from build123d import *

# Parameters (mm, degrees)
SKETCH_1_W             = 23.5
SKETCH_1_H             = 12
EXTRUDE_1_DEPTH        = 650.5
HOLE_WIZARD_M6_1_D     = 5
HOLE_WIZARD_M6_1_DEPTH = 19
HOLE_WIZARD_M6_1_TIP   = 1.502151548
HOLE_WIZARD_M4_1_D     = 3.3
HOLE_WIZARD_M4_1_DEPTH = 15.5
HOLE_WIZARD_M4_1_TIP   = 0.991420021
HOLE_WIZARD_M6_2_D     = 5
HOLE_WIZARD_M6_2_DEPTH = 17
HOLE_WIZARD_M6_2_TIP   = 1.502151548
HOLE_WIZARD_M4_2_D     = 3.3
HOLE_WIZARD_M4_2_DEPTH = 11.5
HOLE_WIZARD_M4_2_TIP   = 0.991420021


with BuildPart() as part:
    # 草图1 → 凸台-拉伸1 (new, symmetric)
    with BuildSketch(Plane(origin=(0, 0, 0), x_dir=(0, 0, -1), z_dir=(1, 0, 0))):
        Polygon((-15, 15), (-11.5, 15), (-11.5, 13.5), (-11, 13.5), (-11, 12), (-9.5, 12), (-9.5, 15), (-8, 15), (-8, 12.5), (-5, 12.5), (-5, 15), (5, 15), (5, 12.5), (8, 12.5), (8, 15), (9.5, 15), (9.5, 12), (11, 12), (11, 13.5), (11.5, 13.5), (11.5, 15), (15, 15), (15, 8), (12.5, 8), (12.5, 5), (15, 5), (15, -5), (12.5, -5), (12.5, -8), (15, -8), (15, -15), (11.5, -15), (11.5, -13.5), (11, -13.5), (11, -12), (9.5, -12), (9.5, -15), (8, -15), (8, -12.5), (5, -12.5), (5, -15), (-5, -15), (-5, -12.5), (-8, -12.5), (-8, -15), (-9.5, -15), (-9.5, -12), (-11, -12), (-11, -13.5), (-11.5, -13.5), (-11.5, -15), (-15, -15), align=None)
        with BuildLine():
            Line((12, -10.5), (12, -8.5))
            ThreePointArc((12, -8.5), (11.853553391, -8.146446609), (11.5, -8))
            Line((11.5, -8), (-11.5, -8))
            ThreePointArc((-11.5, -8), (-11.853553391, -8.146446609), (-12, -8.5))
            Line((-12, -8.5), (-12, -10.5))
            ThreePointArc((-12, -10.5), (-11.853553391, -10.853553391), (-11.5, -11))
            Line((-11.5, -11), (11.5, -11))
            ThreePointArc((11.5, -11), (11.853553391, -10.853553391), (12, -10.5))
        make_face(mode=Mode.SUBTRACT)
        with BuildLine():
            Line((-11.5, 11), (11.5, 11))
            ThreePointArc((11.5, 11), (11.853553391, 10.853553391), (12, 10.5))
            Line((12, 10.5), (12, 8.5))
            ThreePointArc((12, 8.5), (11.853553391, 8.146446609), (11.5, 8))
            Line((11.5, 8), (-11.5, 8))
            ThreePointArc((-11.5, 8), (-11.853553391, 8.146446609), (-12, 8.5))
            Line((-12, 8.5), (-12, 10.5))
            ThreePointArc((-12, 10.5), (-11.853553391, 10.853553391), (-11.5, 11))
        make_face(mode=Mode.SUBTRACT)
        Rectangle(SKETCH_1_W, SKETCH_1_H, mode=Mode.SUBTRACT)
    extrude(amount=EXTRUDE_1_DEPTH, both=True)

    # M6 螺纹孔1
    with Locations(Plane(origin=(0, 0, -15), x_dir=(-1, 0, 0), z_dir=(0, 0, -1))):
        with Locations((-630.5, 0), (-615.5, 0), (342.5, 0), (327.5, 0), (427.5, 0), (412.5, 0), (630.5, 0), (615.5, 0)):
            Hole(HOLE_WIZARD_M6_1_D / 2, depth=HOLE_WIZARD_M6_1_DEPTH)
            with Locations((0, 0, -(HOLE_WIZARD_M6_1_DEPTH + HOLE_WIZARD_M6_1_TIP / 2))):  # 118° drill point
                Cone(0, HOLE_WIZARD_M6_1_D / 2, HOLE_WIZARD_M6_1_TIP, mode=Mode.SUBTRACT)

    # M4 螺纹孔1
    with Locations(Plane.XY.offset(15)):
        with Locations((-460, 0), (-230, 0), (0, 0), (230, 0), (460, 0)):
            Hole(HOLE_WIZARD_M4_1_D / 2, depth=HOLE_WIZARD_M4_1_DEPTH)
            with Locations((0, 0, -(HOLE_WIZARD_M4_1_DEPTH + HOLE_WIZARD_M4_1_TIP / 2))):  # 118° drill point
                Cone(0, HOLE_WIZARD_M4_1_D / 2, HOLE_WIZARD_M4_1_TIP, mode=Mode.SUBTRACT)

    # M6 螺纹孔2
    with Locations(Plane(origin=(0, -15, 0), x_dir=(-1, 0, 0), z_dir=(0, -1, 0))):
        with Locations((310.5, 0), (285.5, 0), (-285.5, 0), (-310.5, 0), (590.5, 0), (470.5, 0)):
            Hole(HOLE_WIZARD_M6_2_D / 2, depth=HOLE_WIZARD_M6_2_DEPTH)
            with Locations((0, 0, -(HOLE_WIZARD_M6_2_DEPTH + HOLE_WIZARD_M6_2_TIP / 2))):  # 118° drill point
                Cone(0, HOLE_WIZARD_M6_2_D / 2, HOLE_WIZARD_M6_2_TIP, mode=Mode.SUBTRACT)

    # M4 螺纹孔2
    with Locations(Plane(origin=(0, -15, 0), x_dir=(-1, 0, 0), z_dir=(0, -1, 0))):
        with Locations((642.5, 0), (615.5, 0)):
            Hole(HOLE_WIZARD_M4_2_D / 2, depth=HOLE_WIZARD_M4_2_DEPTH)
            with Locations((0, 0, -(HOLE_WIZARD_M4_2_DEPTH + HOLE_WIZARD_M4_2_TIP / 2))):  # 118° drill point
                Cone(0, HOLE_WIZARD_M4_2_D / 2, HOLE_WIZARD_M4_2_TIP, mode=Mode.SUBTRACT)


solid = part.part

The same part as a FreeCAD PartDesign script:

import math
import FreeCAD as App
import Part
import Sketcher

V = App.Vector
Q = App.Units.Quantity


def add_polygon(sketch, points):
    """Adds a closed chain of lines whose ends are joined by coincident constraints."""
    first, n = sketch.GeometryCount, len(points)
    for a, b in zip(points, points[1:] + points[:1]):
        sketch.addGeometry(Part.LineSegment(App.Vector(*a, 0), App.Vector(*b, 0)), False)
    for i in range(n):
        sketch.addConstraint(Sketcher.Constraint("Coincident", first + i, 2, first + (i + 1) % n, 1))

doc = App.newDocument("Part")
params = doc.addObject("Spreadsheet::Sheet", "Params")
for row, (alias, value) in enumerate([
    ("sketch1_radius", "0.5 mm"),
    ("sketch1_width", "30 mm"),
    ("sketch1_width2", "3 mm"),
    ("sketch1_width3", "7 mm"),
    ("sketch1_width4", "2 mm"),
    ("pad1_length", "1301 mm"),
    ("sketch2_diameter", "5 mm"),
    ("hole_diameter", "5 mm"),
    ("hole_depth", "19 mm"),
    ("sketch3_diameter", "3.3 mm"),
    ("hole2_diameter", "3.3 mm"),
    ("hole2_depth", "15.5 mm"),
    ("sketch4_diameter", "5 mm"),
    ("hole3_diameter", "5 mm"),
    ("hole3_depth", "17 mm"),
    ("sketch5_diameter", "3.3 mm"),
    ("hole4_diameter", "3.3 mm"),
    ("hole4_depth", "11.5 mm"),
], start=1):
    params.set(f"A{row}", alias)
    params.set(f"B{row}", "=" + value)
    params.setAlias(f"B{row}", alias)

body = doc.addObject("PartDesign::Body", "Body")

sketch1 = doc.addObject("Sketcher::SketchObject", "Sketch")
body.addObject(sketch1)
sketch1.AttachmentSupport = (doc.YZ_Plane, [""])
sketch1.MapMode = "FlatFace"
add_polygon(sketch1, [(15, 11.5), (15, 15), (-15, 15), (-15, 11.5), (-13.5, 11.5), (-13.5, 11), (-12, 11), (-12, 9.5), (-15, 9.5), (-15, 8), (-12.5, 8), (-12.5, 5), (-15, 5), (-15, -5), (-12.5, -5), (-12.5, -8), (-15, -8), (-15, -9.5), (-12, -9.5), (-12, -11), (-13.5, -11), (-13.5, -11.5), (-15, -11.5), (-15, -15), (-8, -15), (-8, -12.5), (-5, -12.5), (-5, -15), (5, -15), (5, -12.5), (8, -12.5), (8, -15), (15, -15), (15, -11.5), (13.5, -11.5), (13.5, -11), (12, -11), (12, -9.5), (15, -9.5), (15, -8), (12.5, -8), (12.5, -5), (15, -5), (15, 5), (12.5, 5), (12.5, 8), (15, 8), (15, 9.5), (12, 9.5), (12, 11), (13.5, 11), (13.5, 11.5)])
sketch1.addGeometry(Part.ArcOfCircle(Part.Circle(V(-10.5, -11.5, 0), V(0, 0, 1), 0.5), math.radians(180), math.radians(270)), False)
sketch1.addGeometry(Part.LineSegment(V(-11, -11.5, 0), V(-11, 11.5, 0)), False)
sketch1.addGeometry(Part.ArcOfCircle(Part.Circle(V(-10.5, 11.5, 0), V(0, 0, 1), 0.5), math.radians(90), math.radians(180)), False)
sketch1.addGeometry(Part.LineSegment(V(-10.5, 12, 0), V(-8.5, 12, 0)), False)
sketch1.addGeometry(Part.ArcOfCircle(Part.Circle(V(-8.5, 11.5, 0), V(0, 0, 1), 0.5), math.radians(0), math.radians(90)), False)
sketch1.addGeometry(Part.LineSegment(V(-8, 11.5, 0), V(-8, -11.5, 0)), False)
sketch1.addGeometry(Part.ArcOfCircle(Part.Circle(V(-8.5, -11.5, 0), V(0, 0, 1), 0.5), math.radians(-90), math.radians(0)), False)
sketch1.addGeometry(Part.LineSegment(V(-8.5, -12, 0), V(-10.5, -12, 0)), False)
add_polygon(sketch1, [(-6, 11.75), (6, 11.75), (6, -11.75), (-6, -11.75)])
sketch1.addGeometry(Part.LineSegment(V(11, 11.5, 0), V(11, -11.5, 0)), False)
sketch1.addGeometry(Part.ArcOfCircle(Part.Circle(V(10.5, -11.5, 0), V(0, 0, 1), 0.5), math.radians(-90), math.radians(0)), False)
sketch1.addGeometry(Part.LineSegment(V(10.5, -12, 0), V(8.5, -12, 0)), False)
sketch1.addGeometry(Part.ArcOfCircle(Part.Circle(V(8.5, -11.5, 0), V(0, 0, 1), 0.5), math.radians(180), math.radians(270)), False)
sketch1.addGeometry(Part.LineSegment(V(8, -11.5, 0), V(8, 11.5, 0)), False)
sketch1.addGeometry(Part.ArcOfCircle(Part.Circle(V(8.5, 11.5, 0), V(0, 0, 1), 0.5), math.radians(90), math.radians(180)), False)
sketch1.addGeometry(Part.LineSegment(V(8.5, 12, 0), V(10.5, 12, 0)), False)
sketch1.addGeometry(Part.ArcOfCircle(Part.Circle(V(10.5, 11.5, 0), V(0, 0, 1), 0.5), math.radians(0), math.radians(90)), False)
sketch1.addConstraint(Sketcher.Constraint("Tangent", 52, 1, 53, 1))
sketch1.addConstraint(Sketcher.Constraint("Tangent", 53, 2, 54, 2))
sketch1.addConstraint(Sketcher.Constraint("Tangent", 54, 1, 55, 1))
sketch1.addConstraint(Sketcher.Constraint("Tangent", 55, 2, 56, 2))
sketch1.addConstraint(Sketcher.Constraint("Tangent", 56, 1, 57, 1))
sketch1.addConstraint(Sketcher.Constraint("Tangent", 57, 2, 58, 2))
sketch1.addConstraint(Sketcher.Constraint("Tangent", 58, 1, 59, 1))
sketch1.addConstraint(Sketcher.Constraint("Tangent", 59, 2, 52, 2))
sketch1.addConstraint(Sketcher.Constraint("Tangent", 64, 2, 65, 2))
sketch1.addConstraint(Sketcher.Constraint("Tangent", 65, 1, 66, 1))
sketch1.addConstraint(Sketcher.Constraint("Tangent", 66, 2, 67, 2))
sketch1.addConstraint(Sketcher.Constraint("Tangent", 67, 1, 68, 1))
sketch1.addConstraint(Sketcher.Constraint("Tangent", 68, 2, 69, 2))
sketch1.addConstraint(Sketcher.Constraint("Tangent", 69, 1, 70, 1))
sketch1.addConstraint(Sketcher.Constraint("Tangent", 70, 2, 71, 2))
sketch1.addConstraint(Sketcher.Constraint("Tangent", 71, 1, 64, 1))
sketch1.addConstraint(Sketcher.Constraint("Vertical", 0))
sketch1.addConstraint(Sketcher.Constraint("Horizontal", 1))
sketch1.addConstraint(Sketcher.Constraint("Vertical", 2))
sketch1.addConstraint(Sketcher.Constraint("Horizontal", 3))
sketch1.addConstraint(Sketcher.Constraint("Vertical", 4))
sketch1.addConstraint(Sketcher.Constraint("Horizontal", 5))
sketch1.addConstraint(Sketcher.Constraint("Vertical", 6))
sketch1.addConstraint(Sketcher.Constraint("Horizontal", 7))
sketch1.addConstraint(Sketcher.Constraint("Vertical", 8))
sketch1.addConstraint(Sketcher.Constraint("Horizontal", 9))
sketch1.addConstraint(Sketcher.Constraint("Vertical", 10))
sketch1.addConstraint(Sketcher.Constraint("Horizontal", 11))
sketch1.addConstraint(Sketcher.Constraint("Vertical", 12))
sketch1.addConstraint(Sketcher.Constraint("Horizontal", 13))
sketch1.addConstraint(Sketcher.Constraint("Vertical", 14))
sketch1.addConstraint(Sketcher.Constraint("Horizontal", 15))
sketch1.addConstraint(Sketcher.Constraint("Vertical", 16))
sketch1.addConstraint(Sketcher.Constraint("Horizontal", 17))
sketch1.addConstraint(Sketcher.Constraint("Vertical", 18))
sketch1.addConstraint(Sketcher.Constraint("Horizontal", 19))
sketch1.addConstraint(Sketcher.Constraint("Vertical", 20))
sketch1.addConstraint(Sketcher.Constraint("Horizontal", 21))
sketch1.addConstraint(Sketcher.Constraint("Vertical", 22))
sketch1.addConstraint(Sketcher.Constraint("Horizontal", 23))
sketch1.addConstraint(Sketcher.Constraint("Vertical", 24))
sketch1.addConstraint(Sketcher.Constraint("Horizontal", 25))
sketch1.addConstraint(Sketcher.Constraint("Vertical", 26))
sketch1.addConstraint(Sketcher.Constraint("Horizontal", 27))
sketch1.addConstraint(Sketcher.Constraint("Vertical", 28))
sketch1.addConstraint(Sketcher.Constraint("Horizontal", 29))
sketch1.addConstraint(Sketcher.Constraint("Vertical", 30))
sketch1.addConstraint(Sketcher.Constraint("Horizontal", 31))
sketch1.addConstraint(Sketcher.Constraint("Vertical", 32))
sketch1.addConstraint(Sketcher.Constraint("Horizontal", 33))
sketch1.addConstraint(Sketcher.Constraint("Vertical", 34))
sketch1.addConstraint(Sketcher.Constraint("Horizontal", 35))
sketch1.addConstraint(Sketcher.Constraint("Vertical", 36))
sketch1.addConstraint(Sketcher.Constraint("Horizontal", 37))
sketch1.addConstraint(Sketcher.Constraint("Vertical", 38))
sketch1.addConstraint(Sketcher.Constraint("Horizontal", 39))
sketch1.addConstraint(Sketcher.Constraint("Vertical", 40))
sketch1.addConstraint(Sketcher.Constraint("Horizontal", 41))
sketch1.addConstraint(Sketcher.Constraint("Vertical", 42))
sketch1.addConstraint(Sketcher.Constraint("Horizontal", 43))
sketch1.addConstraint(Sketcher.Constraint("Vertical", 44))
sketch1.addConstraint(Sketcher.Constraint("Horizontal", 45))
sketch1.addConstraint(Sketcher.Constraint("Vertical", 46))
sketch1.addConstraint(Sketcher.Constraint("Horizontal", 47))
sketch1.addConstraint(Sketcher.Constraint("Vertical", 48))
sketch1.addConstraint(Sketcher.Constraint("Horizontal", 49))
sketch1.addConstraint(Sketcher.Constraint("Vertical", 50))
sketch1.addConstraint(Sketcher.Constraint("Horizontal", 51))
sketch1.addConstraint(Sketcher.Constraint("Vertical", 53))
sketch1.addConstraint(Sketcher.Constraint("Horizontal", 55))
sketch1.addConstraint(Sketcher.Constraint("Vertical", 57))
sketch1.addConstraint(Sketcher.Constraint("Horizontal", 59))
sketch1.addConstraint(Sketcher.Constraint("Horizontal", 60))
sketch1.addConstraint(Sketcher.Constraint("Vertical", 61))
sketch1.addConstraint(Sketcher.Constraint("Horizontal", 62))
sketch1.addConstraint(Sketcher.Constraint("Vertical", 63))
sketch1.addConstraint(Sketcher.Constraint("Vertical", 64))
sketch1.addConstraint(Sketcher.Constraint("Horizontal", 66))
sketch1.addConstraint(Sketcher.Constraint("Vertical", 68))
sketch1.addConstraint(Sketcher.Constraint("Horizontal", 70))
sketch1.addConstraint(Sketcher.Constraint("Equal", 52, 54))
sketch1.addConstraint(Sketcher.Constraint("Equal", 54, 56))
sketch1.addConstraint(Sketcher.Constraint("Equal", 56, 58))
sketch1.addConstraint(Sketcher.Constraint("Equal", 58, 65))
sketch1.addConstraint(Sketcher.Constraint("Equal", 65, 67))
sketch1.addConstraint(Sketcher.Constraint("Equal", 67, 69))
sketch1.addConstraint(Sketcher.Constraint("Equal", 69, 71))
sketch1.addConstraint(Sketcher.Constraint("Symmetric", 54, 3, 65, 3, -1, 1))
sketch1.addConstraint(Sketcher.Constraint("Symmetric", 58, 3, 69, 3, -1, 1))
sketch1.addConstraint(Sketcher.Constraint("Symmetric", 0, 2, 22, 2, -1, 1))
sketch1.addConstraint(Sketcher.Constraint("Symmetric", 1, 2, 31, 2, -1, 1))
sketch1.addConstraint(Sketcher.Constraint("Symmetric", 3, 2, 33, 2, -1, 1))
sketch1.addConstraint(Sketcher.Constraint("Symmetric", 5, 2, 35, 2, -1, 1))
sketch1.addConstraint(Sketcher.Constraint("Symmetric", 7, 2, 37, 2, -1, 1))
sketch1.addConstraint(Sketcher.Constraint("Symmetric", 9, 2, 39, 2, -1, 1))
sketch1.addConstraint(Sketcher.Constraint("Symmetric", 11, 2, 41, 2, -1, 1))
sketch1.addConstraint(Sketcher.Constraint("Symmetric", 13, 2, 43, 2, -1, 1))
sketch1.addConstraint(Sketcher.Constraint("Symmetric", 15, 2, 45, 2, -1, 1))
sketch1.addConstraint(Sketcher.Constraint("Symmetric", 17, 2, 47, 2, -1, 1))
sketch1.addConstraint(Sketcher.Constraint("Symmetric", 19, 2, 49, 2, -1, 1))
sketch1.addConstraint(Sketcher.Constraint("Symmetric", 60, 2, 62, 2, -1, 1))
sketch1.addConstraint(Sketcher.Constraint("Symmetric", 25, 2, 28, 2, -2))
sketch1.addConstraint(Sketcher.Constraint("Symmetric", 21, 2, 32, 2, -2))
sketch1.addConstraint(Sketcher.Constraint("Symmetric", 19, 2, 34, 2, -2))
sketch1.addConstraint(Sketcher.Constraint("Symmetric", 17, 2, 36, 2, -2))
sketch1.addConstraint(Sketcher.Constraint("Symmetric", 15, 2, 38, 2, -2))
sketch1.addConstraint(Sketcher.Constraint("Symmetric", 13, 2, 40, 2, -2))
sketch1.addConstraint(Sketcher.Constraint("Horizontal", 58, 3, 65, 3))
sketch1.addConstraint(Sketcher.Constraint("Horizontal", 71, 3, 2, 2))
sketch1.addConstraint(Sketcher.Constraint("Horizontal", 23, 2, 26, 2))
sketch1.addConstraint(Sketcher.Constraint("Horizontal", 3, 2, 50, 2))
sketch1.addConstraint(Sketcher.Constraint("Vertical", 2, 2, 7, 2))
sketch1.addConstraint(Sketcher.Constraint("Vertical", 8, 2, 11, 2))
sketch1.addConstraint(Sketcher.Constraint("Vertical", 24, 2, 56, 1))
sketch1.addConstraint(Sketcher.Constraint("Vertical", 30, 2, 67, 1))
sketch1.addConstraint(Sketcher.Constraint("Equal", 3, 5))
sketch1.addConstraint(Sketcher.Constraint("Equal", 17, 25))
sketch1.addConstraint(Sketcher.Constraint("Equal", 51, 6))
sketch1.addConstraint(Sketcher.Constraint("Equal", 6, 8))
sketch1.addConstraint(Sketcher.Constraint("Equal", 47, 10))
sketch1.addConstraint(Sketcher.Constraint("Equal", 27, 12))
sketch1.addConstraint(Sketcher.Constraint("Equal", 45, 24))
sketch1.addConstraint(Sketcher.Constraint("Radius", 52, Q("0.5 mm")))
sketch1.addConstraint(Sketcher.Constraint("DistanceX", 1, 2, 1, 1, Q("30 mm")))
sketch1.addConstraint(Sketcher.Constraint("DistanceX", 7, 2, 7, 1, Q("3 mm")))
sketch1.addConstraint(Sketcher.Constraint("DistanceX", 23, 1, 23, 2, Q("7 mm")))
sketch1.addConstraint(Sketcher.Constraint("DistanceX", 55, 1, 55, 2, Q("2 mm")))
sketch1.addConstraint(Sketcher.Constraint("DistanceX", 60, 1, 60, 2, Q("12 mm")))
sketch1.addConstraint(Sketcher.Constraint("DistanceY", 53, 1, 53, 2, Q("23 mm")))
sketch1.addConstraint(Sketcher.Constraint("DistanceX", 9, 1, 9, 2, Q("2.5 mm")))
sketch1.addConstraint(Sketcher.Constraint("DistanceY", 0, 1, 0, 2, Q("3.5 mm")))
sketch1.addConstraint(Sketcher.Constraint("DistanceY", 61, 2, 61, 1, Q("23.5 mm")))
sketch1.setExpression("Constraints[178]", "Params.sketch1_radius")
sketch1.setExpression("Constraints[179]", "Params.sketch1_width")
sketch1.setExpression("Constraints[180]", "Params.sketch1_width2")
sketch1.setExpression("Constraints[181]", "Params.sketch1_width3")
sketch1.setExpression("Constraints[182]", "Params.sketch1_width4")
pad1 = doc.addObject("PartDesign::Pad", "Pad")
body.addObject(pad1)
pad1.Profile = sketch1
pad1.setExpression("Length", "Params.pad1_length")
pad1.Midplane = True

sketch2 = doc.addObject("Sketcher::SketchObject", "Sketch001")
body.addObject(sketch2)
sketch2.AttachmentSupport = (doc.XY_Plane, [""])
sketch2.MapMode = "FlatFace"
sketch2.AttachmentOffset = App.Placement(V(0, 0, -15), App.Rotation())
sketch2.addGeometry(Part.Circle(V(630.5, 0, 0), V(0, 0, 1), 2.5), False)
sketch2.addGeometry(Part.Circle(V(615.5, 0, 0), V(0, 0, 1), 2.5), False)
sketch2.addGeometry(Part.Circle(V(-342.5, 0, 0), V(0, 0, 1), 2.5), False)
sketch2.addGeometry(Part.Circle(V(-327.5, 0, 0), V(0, 0, 1), 2.5), False)
sketch2.addGeometry(Part.Circle(V(-427.5, 0, 0), V(0, 0, 1), 2.5), False)
sketch2.addGeometry(Part.Circle(V(-412.5, 0, 0), V(0, 0, 1), 2.5), False)
sketch2.addGeometry(Part.Circle(V(-630.5, 0, 0), V(0, 0, 1), 2.5), False)
sketch2.addGeometry(Part.Circle(V(-615.5, 0, 0), V(0, 0, 1), 2.5), False)
sketch2.addConstraint(Sketcher.Constraint("Equal", 0, 1))
sketch2.addConstraint(Sketcher.Constraint("Equal", 1, 2))
sketch2.addConstraint(Sketcher.Constraint("Equal", 2, 3))
sketch2.addConstraint(Sketcher.Constraint("Equal", 3, 4))
sketch2.addConstraint(Sketcher.Constraint("Equal", 4, 5))
sketch2.addConstraint(Sketcher.Constraint("Equal", 5, 6))
sketch2.addConstraint(Sketcher.Constraint("Equal", 6, 7))
sketch2.addConstraint(Sketcher.Constraint("Symmetric", 0, 3, 6, 3, -1, 1))
sketch2.addConstraint(Sketcher.Constraint("Symmetric", 1, 3, 7, 3, -1, 1))
sketch2.addConstraint(Sketcher.Constraint("PointOnObject", 0, 3, -1))
sketch2.addConstraint(Sketcher.Constraint("PointOnObject", 1, 3, -1))
sketch2.addConstraint(Sketcher.Constraint("PointOnObject", 2, 3, -1))
sketch2.addConstraint(Sketcher.Constraint("PointOnObject", 3, 3, -1))
sketch2.addConstraint(Sketcher.Constraint("PointOnObject", 4, 3, -1))
sketch2.addConstraint(Sketcher.Constraint("PointOnObject", 5, 3, -1))
sketch2.addConstraint(Sketcher.Constraint("Diameter", 0, Q("5 mm")))
sketch2.addConstraint(Sketcher.Constraint("DistanceX", 1, 3, 0, 3, Q("15 mm")))
sketch2.addConstraint(Sketcher.Constraint("DistanceX", 2, 3, 1, 3, Q("958 mm")))
sketch2.addConstraint(Sketcher.Constraint("DistanceX", 2, 3, 3, 3, Q("15 mm")))
sketch2.addConstraint(Sketcher.Constraint("DistanceX", 4, 3, 2, 3, Q("85 mm")))
sketch2.addConstraint(Sketcher.Constraint("DistanceX", 4, 3, 5, 3, Q("15 mm")))
sketch2.addConstraint(Sketcher.Constraint("DistanceX", 6, 3, 4, 3, Q("203 mm")))
sketch2.setExpression("Constraints[15]", "Params.sketch2_diameter")
doc.recompute()
hole = doc.addObject("PartDesign::Hole", "Hole")
body.addObject(hole)
hole.Profile = sketch2
hole.ThreadType = "None"
hole.setExpression("Diameter", "Params.hole_diameter")
hole.DepthType = "Dimension"
hole.setExpression("Depth", "Params.hole_depth")
hole.DrillPoint = "Angled"
hole.DrillPointAngle = 118
hole.Reversed = True

sketch3 = doc.addObject("Sketcher::SketchObject", "Sketch002")
body.addObject(sketch3)
sketch3.AttachmentSupport = (doc.XY_Plane, [""])
sketch3.MapMode = "FlatFace"
sketch3.AttachmentOffset = App.Placement(V(0, 0, 15), App.Rotation())
sketch3.addGeometry(Part.Circle(V(-460, 0, 0), V(0, 0, 1), 1.6), False)
sketch3.addGeometry(Part.Circle(V(-230, 0, 0), V(0, 0, 1), 1.6), False)
sketch3.addGeometry(Part.Circle(V(0, 0, 0), V(0, 0, 1), 1.6), False)
sketch3.addGeometry(Part.Circle(V(230, 0, 0), V(0, 0, 1), 1.6), False)
sketch3.addGeometry(Part.Circle(V(460, 0, 0), V(0, 0, 1), 1.6), False)
sketch3.addConstraint(Sketcher.Constraint("Coincident", 2, 3, -1, 1))
sketch3.addConstraint(Sketcher.Constraint("Equal", 0, 1))
sketch3.addConstraint(Sketcher.Constraint("Equal", 1, 2))
sketch3.addConstraint(Sketcher.Constraint("Equal", 2, 3))
sketch3.addConstraint(Sketcher.Constraint("Equal", 3, 4))
sketch3.addConstraint(Sketcher.Constraint("Symmetric", 1, 3, 3, 3, -1, 1))
sketch3.addConstraint(Sketcher.Constraint("Symmetric", 0, 3, 4, 3, -1, 1))
sketch3.addConstraint(Sketcher.Constraint("PointOnObject", 0, 3, -1))
sketch3.addConstraint(Sketcher.Constraint("PointOnObject", 1, 3, -1))
sketch3.addConstraint(Sketcher.Constraint("Diameter", 0, Q("3.3 mm")))
sketch3.addConstraint(Sketcher.Constraint("DistanceX", 0, 3, -1, 1, Q("460 mm")))
sketch3.addConstraint(Sketcher.Constraint("DistanceX", 1, 3, -1, 1, Q("230 mm")))
sketch3.setExpression("Constraints[9]", "Params.sketch3_diameter")
doc.recompute()
hole2 = doc.addObject("PartDesign::Hole", "Hole001")
body.addObject(hole2)
hole2.Profile = sketch3
hole2.ThreadType = "None"
hole2.setExpression("Diameter", "Params.hole2_diameter")
hole2.DepthType = "Dimension"
hole2.setExpression("Depth", "Params.hole2_depth")
hole2.DrillPoint = "Angled"
hole2.DrillPointAngle = 118

sketch4 = doc.addObject("Sketcher::SketchObject", "Sketch003")
body.addObject(sketch4)
sketch4.AttachmentSupport = (doc.XZ_Plane, [""])
sketch4.MapMode = "FlatFace"
sketch4.AttachmentOffset = App.Placement(V(0, 0, 15), App.Rotation())
sketch4.addGeometry(Part.Circle(V(-310.5, 0, 0), V(0, 0, 1), 2.5), False)
sketch4.addGeometry(Part.Circle(V(-285.5, 0, 0), V(0, 0, 1), 2.5), False)
sketch4.addGeometry(Part.Circle(V(285.5, 0, 0), V(0, 0, 1), 2.5), False)
sketch4.addGeometry(Part.Circle(V(310.5, 0, 0), V(0, 0, 1), 2.5), False)
sketch4.addGeometry(Part.Circle(V(-590.5, 0, 0), V(0, 0, 1), 2.5), False)
sketch4.addGeometry(Part.Circle(V(-470.5, 0, 0), V(0, 0, 1), 2.5), False)
sketch4.addConstraint(Sketcher.Constraint("Equal", 0, 1))
sketch4.addConstraint(Sketcher.Constraint("Equal", 1, 2))
sketch4.addConstraint(Sketcher.Constraint("Equal", 2, 3))
sketch4.addConstraint(Sketcher.Constraint("Equal", 3, 4))
sketch4.addConstraint(Sketcher.Constraint("Equal", 4, 5))
sketch4.addConstraint(Sketcher.Constraint("Symmetric", 1, 3, 2, 3, -1, 1))
sketch4.addConstraint(Sketcher.Constraint("Symmetric", 0, 3, 3, 3, -1, 1))
sketch4.addConstraint(Sketcher.Constraint("PointOnObject", 0, 3, -1))
sketch4.addConstraint(Sketcher.Constraint("PointOnObject", 1, 3, -1))
sketch4.addConstraint(Sketcher.Constraint("PointOnObject", 4, 3, -1))
sketch4.addConstraint(Sketcher.Constraint("PointOnObject", 5, 3, -1))
sketch4.addConstraint(Sketcher.Constraint("Diameter", 0, Q("5 mm")))
sketch4.addConstraint(Sketcher.Constraint("DistanceX", 0, 3, 1, 3, Q("25 mm")))
sketch4.addConstraint(Sketcher.Constraint("DistanceX", 1, 3, 2, 3, Q("571 mm")))
sketch4.addConstraint(Sketcher.Constraint("DistanceX", 4, 3, 0, 3, Q("280 mm")))
sketch4.addConstraint(Sketcher.Constraint("DistanceX", 4, 3, 5, 3, Q("120 mm")))
sketch4.setExpression("Constraints[11]", "Params.sketch4_diameter")
doc.recompute()
hole3 = doc.addObject("PartDesign::Hole", "Hole002")
body.addObject(hole3)
hole3.Profile = sketch4
hole3.ThreadType = "None"
hole3.setExpression("Diameter", "Params.hole3_diameter")
hole3.DepthType = "Dimension"
hole3.setExpression("Depth", "Params.hole3_depth")
hole3.DrillPoint = "Angled"
hole3.DrillPointAngle = 118

sketch5 = doc.addObject("Sketcher::SketchObject", "Sketch004")
body.addObject(sketch5)
sketch5.AttachmentSupport = (doc.XZ_Plane, [""])
sketch5.MapMode = "FlatFace"
sketch5.AttachmentOffset = App.Placement(V(0, 0, 15), App.Rotation())
sketch5.addGeometry(Part.Circle(V(-642.5, 0, 0), V(0, 0, 1), 1.6), False)
sketch5.addGeometry(Part.Circle(V(-615.5, 0, 0), V(0, 0, 1), 1.6), False)
sketch5.addConstraint(Sketcher.Constraint("Equal", 0, 1))
sketch5.addConstraint(Sketcher.Constraint("PointOnObject", 0, 3, -1))
sketch5.addConstraint(Sketcher.Constraint("PointOnObject", 1, 3, -1))
sketch5.addConstraint(Sketcher.Constraint("Diameter", 0, Q("3.3 mm")))
sketch5.addConstraint(Sketcher.Constraint("DistanceX", 0, 3, 1, 3, Q("27 mm")))
sketch5.addConstraint(Sketcher.Constraint("DistanceX", 0, 3, -1, 1, Q("642.5 mm")))
sketch5.setExpression("Constraints[3]", "Params.sketch5_diameter")
doc.recompute()
hole4 = doc.addObject("PartDesign::Hole", "Hole003")
body.addObject(hole4)
hole4.Profile = sketch5
hole4.ThreadType = "None"
hole4.setExpression("Diameter", "Params.hole4_diameter")
hole4.DepthType = "Dimension"
hole4.setExpression("Depth", "Params.hole4_depth")
hole4.DrillPoint = "Angled"
hole4.DrillPointAngle = 118

doc.recompute()
